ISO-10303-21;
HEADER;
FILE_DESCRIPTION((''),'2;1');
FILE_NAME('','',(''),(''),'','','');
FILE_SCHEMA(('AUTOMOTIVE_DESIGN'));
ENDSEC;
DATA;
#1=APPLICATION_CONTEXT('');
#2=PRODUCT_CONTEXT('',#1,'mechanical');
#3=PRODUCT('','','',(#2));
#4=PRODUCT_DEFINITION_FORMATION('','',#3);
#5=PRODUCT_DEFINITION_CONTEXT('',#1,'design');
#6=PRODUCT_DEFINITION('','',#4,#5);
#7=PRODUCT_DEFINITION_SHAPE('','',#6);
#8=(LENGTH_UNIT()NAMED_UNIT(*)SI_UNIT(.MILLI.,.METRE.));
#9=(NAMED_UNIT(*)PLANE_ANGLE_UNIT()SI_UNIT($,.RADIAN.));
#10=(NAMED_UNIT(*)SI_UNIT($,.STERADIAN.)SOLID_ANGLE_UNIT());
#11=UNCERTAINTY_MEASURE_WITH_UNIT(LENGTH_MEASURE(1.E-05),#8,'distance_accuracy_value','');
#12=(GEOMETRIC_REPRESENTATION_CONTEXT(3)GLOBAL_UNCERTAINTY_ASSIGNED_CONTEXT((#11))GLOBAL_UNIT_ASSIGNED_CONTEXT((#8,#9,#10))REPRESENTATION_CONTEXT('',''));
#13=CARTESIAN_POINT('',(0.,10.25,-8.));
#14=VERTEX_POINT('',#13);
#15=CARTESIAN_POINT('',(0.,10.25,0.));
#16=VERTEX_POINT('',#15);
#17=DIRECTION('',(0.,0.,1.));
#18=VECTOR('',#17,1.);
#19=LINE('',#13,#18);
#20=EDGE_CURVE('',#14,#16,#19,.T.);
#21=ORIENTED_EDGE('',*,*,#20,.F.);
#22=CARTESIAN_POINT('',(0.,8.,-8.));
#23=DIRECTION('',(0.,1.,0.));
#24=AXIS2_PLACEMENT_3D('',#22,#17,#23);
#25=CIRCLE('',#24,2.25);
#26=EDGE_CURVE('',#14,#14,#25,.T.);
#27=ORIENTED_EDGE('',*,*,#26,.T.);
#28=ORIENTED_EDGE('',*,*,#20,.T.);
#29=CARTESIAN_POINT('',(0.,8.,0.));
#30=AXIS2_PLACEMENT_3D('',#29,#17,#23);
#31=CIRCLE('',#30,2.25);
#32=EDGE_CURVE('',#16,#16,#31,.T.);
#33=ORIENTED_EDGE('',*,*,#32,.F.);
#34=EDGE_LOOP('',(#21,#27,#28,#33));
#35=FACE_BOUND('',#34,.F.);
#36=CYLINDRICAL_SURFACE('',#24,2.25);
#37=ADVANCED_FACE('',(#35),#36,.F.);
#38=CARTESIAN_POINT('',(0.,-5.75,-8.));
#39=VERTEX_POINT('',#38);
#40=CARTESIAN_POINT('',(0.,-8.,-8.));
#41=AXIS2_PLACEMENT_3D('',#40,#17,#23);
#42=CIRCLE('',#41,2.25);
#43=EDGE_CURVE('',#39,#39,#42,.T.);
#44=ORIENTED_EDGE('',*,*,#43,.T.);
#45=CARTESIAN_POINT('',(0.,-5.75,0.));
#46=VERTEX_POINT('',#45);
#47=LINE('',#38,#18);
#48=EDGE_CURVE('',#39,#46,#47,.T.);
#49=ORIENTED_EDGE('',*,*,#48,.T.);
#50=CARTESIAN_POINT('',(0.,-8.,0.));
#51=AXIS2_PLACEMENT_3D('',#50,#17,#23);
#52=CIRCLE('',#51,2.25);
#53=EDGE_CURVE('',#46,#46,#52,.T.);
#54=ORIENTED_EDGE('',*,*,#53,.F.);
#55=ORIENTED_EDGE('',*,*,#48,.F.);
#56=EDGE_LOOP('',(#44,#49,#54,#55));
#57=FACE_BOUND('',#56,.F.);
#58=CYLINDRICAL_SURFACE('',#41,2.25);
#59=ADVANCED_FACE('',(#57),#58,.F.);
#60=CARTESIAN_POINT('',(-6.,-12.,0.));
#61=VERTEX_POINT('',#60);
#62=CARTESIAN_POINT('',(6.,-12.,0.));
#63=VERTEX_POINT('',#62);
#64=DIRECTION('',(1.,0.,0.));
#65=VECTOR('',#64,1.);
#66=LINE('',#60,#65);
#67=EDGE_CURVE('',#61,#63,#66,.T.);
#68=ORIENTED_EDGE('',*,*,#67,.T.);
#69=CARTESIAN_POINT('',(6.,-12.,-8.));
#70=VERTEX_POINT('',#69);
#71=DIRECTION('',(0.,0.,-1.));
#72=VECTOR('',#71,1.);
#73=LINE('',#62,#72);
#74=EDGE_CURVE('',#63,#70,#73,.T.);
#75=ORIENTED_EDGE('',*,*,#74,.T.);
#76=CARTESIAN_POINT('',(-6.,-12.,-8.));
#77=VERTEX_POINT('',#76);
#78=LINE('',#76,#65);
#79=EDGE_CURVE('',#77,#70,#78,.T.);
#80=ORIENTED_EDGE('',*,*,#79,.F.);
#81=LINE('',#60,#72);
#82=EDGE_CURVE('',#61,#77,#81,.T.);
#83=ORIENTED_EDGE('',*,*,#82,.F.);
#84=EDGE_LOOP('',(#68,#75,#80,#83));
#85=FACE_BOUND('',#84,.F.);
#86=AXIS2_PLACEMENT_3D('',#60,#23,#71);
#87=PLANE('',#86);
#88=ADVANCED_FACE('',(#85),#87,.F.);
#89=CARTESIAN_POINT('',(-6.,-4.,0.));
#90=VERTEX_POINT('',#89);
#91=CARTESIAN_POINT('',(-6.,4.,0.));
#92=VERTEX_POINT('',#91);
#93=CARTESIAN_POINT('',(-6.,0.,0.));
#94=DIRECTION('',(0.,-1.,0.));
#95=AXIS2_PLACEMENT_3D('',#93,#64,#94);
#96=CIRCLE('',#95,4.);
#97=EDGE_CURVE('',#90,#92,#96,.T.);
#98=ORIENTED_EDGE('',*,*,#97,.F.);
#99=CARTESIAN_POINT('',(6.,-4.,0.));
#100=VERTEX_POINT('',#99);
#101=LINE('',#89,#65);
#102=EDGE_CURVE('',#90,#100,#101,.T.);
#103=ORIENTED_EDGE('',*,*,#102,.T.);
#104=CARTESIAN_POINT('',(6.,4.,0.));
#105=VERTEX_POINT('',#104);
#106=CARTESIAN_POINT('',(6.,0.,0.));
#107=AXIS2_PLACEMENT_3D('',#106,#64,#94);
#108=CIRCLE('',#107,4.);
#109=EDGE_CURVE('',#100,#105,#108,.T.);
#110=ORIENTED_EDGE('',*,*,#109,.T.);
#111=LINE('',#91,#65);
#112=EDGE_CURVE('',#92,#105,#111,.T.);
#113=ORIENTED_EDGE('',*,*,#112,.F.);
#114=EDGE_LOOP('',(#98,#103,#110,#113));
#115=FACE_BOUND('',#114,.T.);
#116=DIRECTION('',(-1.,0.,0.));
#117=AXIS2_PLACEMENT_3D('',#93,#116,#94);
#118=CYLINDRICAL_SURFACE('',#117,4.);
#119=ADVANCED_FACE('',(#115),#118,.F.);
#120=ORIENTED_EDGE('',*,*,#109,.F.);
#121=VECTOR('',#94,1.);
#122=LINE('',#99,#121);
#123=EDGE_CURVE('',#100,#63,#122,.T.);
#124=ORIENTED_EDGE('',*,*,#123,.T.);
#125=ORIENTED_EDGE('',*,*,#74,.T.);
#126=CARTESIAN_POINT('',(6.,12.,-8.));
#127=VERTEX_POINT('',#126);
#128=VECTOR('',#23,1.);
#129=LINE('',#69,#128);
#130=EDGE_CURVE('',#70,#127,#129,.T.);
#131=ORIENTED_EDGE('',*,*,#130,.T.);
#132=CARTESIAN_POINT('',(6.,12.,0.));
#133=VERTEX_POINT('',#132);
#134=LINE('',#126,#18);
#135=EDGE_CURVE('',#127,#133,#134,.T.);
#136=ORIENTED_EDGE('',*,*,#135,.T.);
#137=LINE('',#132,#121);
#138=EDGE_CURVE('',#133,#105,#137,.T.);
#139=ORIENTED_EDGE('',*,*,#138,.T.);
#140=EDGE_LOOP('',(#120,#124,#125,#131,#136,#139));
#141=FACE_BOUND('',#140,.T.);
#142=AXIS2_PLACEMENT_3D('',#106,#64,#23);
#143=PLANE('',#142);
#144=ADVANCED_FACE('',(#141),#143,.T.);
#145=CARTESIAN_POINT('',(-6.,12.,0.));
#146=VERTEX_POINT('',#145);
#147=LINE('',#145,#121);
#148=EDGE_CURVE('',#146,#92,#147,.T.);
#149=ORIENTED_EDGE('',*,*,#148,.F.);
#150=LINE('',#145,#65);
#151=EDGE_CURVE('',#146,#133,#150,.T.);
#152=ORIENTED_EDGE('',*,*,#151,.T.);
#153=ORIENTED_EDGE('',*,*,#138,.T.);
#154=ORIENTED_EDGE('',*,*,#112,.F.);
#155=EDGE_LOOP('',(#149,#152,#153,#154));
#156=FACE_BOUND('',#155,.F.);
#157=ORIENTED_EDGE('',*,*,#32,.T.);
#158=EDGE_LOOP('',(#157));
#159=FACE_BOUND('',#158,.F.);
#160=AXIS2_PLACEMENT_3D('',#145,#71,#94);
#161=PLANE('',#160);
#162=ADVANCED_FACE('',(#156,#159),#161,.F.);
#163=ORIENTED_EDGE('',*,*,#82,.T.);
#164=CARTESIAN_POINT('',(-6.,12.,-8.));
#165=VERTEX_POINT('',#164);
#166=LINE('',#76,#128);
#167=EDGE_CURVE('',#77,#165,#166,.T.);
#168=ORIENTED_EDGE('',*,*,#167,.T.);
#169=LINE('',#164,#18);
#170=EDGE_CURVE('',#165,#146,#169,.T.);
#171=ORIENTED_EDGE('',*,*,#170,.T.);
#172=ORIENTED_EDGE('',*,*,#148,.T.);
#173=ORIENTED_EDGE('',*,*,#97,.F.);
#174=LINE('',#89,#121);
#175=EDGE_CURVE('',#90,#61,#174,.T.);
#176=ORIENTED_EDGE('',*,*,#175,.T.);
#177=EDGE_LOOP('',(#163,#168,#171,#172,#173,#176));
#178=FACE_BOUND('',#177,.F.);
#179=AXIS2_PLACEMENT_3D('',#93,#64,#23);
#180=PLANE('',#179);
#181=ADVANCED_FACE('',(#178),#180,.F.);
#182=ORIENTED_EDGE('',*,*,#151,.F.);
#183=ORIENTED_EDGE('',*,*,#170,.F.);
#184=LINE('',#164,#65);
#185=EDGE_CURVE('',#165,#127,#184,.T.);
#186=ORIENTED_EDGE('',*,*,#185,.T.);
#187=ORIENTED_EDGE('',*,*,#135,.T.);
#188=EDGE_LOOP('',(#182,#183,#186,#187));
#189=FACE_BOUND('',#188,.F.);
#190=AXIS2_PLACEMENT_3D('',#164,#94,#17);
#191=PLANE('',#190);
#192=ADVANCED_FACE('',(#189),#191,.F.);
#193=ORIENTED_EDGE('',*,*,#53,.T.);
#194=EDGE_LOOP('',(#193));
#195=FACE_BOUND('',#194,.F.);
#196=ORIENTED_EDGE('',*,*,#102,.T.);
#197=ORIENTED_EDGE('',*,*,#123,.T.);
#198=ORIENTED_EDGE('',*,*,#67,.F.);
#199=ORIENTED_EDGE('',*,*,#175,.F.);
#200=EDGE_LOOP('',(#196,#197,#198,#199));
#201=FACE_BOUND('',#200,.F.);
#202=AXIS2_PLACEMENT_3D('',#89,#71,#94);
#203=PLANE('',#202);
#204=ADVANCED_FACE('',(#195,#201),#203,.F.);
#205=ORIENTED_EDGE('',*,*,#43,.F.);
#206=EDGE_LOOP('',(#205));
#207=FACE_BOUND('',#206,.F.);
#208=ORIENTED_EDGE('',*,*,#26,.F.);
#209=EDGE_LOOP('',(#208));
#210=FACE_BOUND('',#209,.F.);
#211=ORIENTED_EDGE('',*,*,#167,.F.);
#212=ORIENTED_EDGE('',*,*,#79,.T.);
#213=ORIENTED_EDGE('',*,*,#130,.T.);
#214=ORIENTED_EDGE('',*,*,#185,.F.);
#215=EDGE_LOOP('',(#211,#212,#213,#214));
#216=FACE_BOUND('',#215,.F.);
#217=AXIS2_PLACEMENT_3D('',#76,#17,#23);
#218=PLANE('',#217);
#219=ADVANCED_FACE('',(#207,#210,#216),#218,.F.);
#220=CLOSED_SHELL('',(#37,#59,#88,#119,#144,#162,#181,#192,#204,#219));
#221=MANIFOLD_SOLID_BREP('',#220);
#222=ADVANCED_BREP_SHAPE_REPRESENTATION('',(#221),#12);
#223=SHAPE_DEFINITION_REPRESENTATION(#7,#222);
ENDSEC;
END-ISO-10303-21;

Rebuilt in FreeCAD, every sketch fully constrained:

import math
import FreeCAD as App
import Part
import Sketcher
Q = App.Units.Quantity

doc = App.newDocument("Part")
body = doc.addObject("PartDesign::Body", "Body")

# Sketch on YZ plane
sketch1 = body.newObject("Sketcher::SketchObject", "Sketch")
sketch1.AttachmentSupport = (doc.getObject("YZ_Plane"), [""])
sketch1.MapMode = "FlatFace"
sketch1.AttachmentOffset = App.Placement(App.Vector(0, 0, -6), App.Rotation())
sketch1.addGeometry([
    Part.LineSegment(App.Vector(-12, 0, 0), App.Vector(-12, -8, 0)),  # 0
    Part.LineSegment(App.Vector(-12, -8, 0), App.Vector(12, -8, 0)),  # 1
    Part.LineSegment(App.Vector(12, -8, 0), App.Vector(12, 0, 0)),  # 2
    Part.LineSegment(App.Vector(12, 0, 0), App.Vector(4, 0, 0)),  # 3
    Part.ArcOfCircle(Part.Circle(App.Vector(0, 0, 0), App.Vector(0, 0, 1), 4), math.radians(180), math.radians(360)),  # 4
    Part.LineSegment(App.Vector(-4, 0, 0), App.Vector(-12, 0, 0)),  # 5
], False)
sketch1.addConstraint([
    Sketcher.Constraint("Coincident", 0, 2, 1, 1),
    Sketcher.Constraint("Coincident", 1, 2, 2, 1),
    Sketcher.Constraint("Coincident", 2, 2, 3, 1),
    Sketcher.Constraint("Coincident", 3, 2, 4, 2),
    Sketcher.Constraint("Coincident", 4, 1, 5, 1),
    Sketcher.Constraint("Coincident", 5, 2, 0, 1),
    Sketcher.Constraint("Vertical", 0),
    Sketcher.Constraint("Horizontal", 1),
    Sketcher.Constraint("Vertical", 2),
    Sketcher.Constraint("Horizontal", 3),
    Sketcher.Constraint("Horizontal", 5),
    Sketcher.Constraint("Coincident", 4, 3, -1, 1),
    Sketcher.Constraint("Symmetric", 2, 2, 5, 2, -1, 1),
    Sketcher.Constraint("PointOnObject", 2, 2, -1),
    Sketcher.Constraint("Equal", 5, 0),
    Sketcher.Constraint("Radius", 4, Q("4 mm")),
    Sketcher.Constraint("DistanceX", 1, 1, 1, 2, Q("24 mm")),
])
pad1 = body.newObject("PartDesign::Pad", "Pad")
pad1.Profile = sketch1
pad1.Length = 12

# Sketch on XY plane
sketch2 = body.newObject("Sketcher::SketchObject", "Sketch001")
sketch2.AttachmentSupport = (doc.getObject("XY_Plane"), [""])
sketch2.MapMode = "FlatFace"
sketch2.AttachmentOffset = App.Placement(App.Vector(0, 0, -8), App.Rotation())
sketch2.addGeometry(Part.Circle(App.Vector(0, -8, 0), App.Vector(0, 0, 1), 2.25), False)
sketch2.addConstraint([
    Sketcher.Constraint("PointOnObject", 0, 3, -2),
    Sketcher.Constraint("Diameter", 0, Q("4.5 mm")),
    Sketcher.Constraint("DistanceY", 0, 3, -1, 1, Q("8 mm")),
])
doc.recompute()
hole = body.newObject("PartDesign::Hole", "Hole")
hole.Profile = sketch2
hole.ThreadType = "None"
hole.Diameter = 4.5
hole.DepthType = "Dimension"
hole.Depth = 8
hole.DrillPoint = "Flat"
hole.Reversed = True

# Sketch on XY plane
sketch3 = body.newObject("Sketcher::SketchObject", "Sketch002")
sketch3.AttachmentSupport = (doc.getObject("XY_Plane"), [""])
sketch3.MapMode = "FlatFace"
sketch3.AttachmentOffset = App.Placement(App.Vector(0, 0, -8), App.Rotation())
sketch3.addGeometry(Part.Circle(App.Vector(0, 8, 0), App.Vector(0, 0, 1), 2.25), False)
sketch3.addConstraint([
    Sketcher.Constraint("PointOnObject", 0, 3, -2),
    Sketcher.Constraint("Diameter", 0, Q("4.5 mm")),
    Sketcher.Constraint("DistanceY", -1, 1, 0, 3, Q("8 mm")),
])
doc.recompute()
hole2 = body.newObject("PartDesign::Hole", "Hole001")
hole2.Profile = sketch3
hole2.ThreadType = "None"
hole2.Diameter = 4.5
hole2.DepthType = "Dimension"
hole2.Depth = 8
hole2.DrillPoint = "Flat"
hole2.Reversed = True

doc.recompute()
